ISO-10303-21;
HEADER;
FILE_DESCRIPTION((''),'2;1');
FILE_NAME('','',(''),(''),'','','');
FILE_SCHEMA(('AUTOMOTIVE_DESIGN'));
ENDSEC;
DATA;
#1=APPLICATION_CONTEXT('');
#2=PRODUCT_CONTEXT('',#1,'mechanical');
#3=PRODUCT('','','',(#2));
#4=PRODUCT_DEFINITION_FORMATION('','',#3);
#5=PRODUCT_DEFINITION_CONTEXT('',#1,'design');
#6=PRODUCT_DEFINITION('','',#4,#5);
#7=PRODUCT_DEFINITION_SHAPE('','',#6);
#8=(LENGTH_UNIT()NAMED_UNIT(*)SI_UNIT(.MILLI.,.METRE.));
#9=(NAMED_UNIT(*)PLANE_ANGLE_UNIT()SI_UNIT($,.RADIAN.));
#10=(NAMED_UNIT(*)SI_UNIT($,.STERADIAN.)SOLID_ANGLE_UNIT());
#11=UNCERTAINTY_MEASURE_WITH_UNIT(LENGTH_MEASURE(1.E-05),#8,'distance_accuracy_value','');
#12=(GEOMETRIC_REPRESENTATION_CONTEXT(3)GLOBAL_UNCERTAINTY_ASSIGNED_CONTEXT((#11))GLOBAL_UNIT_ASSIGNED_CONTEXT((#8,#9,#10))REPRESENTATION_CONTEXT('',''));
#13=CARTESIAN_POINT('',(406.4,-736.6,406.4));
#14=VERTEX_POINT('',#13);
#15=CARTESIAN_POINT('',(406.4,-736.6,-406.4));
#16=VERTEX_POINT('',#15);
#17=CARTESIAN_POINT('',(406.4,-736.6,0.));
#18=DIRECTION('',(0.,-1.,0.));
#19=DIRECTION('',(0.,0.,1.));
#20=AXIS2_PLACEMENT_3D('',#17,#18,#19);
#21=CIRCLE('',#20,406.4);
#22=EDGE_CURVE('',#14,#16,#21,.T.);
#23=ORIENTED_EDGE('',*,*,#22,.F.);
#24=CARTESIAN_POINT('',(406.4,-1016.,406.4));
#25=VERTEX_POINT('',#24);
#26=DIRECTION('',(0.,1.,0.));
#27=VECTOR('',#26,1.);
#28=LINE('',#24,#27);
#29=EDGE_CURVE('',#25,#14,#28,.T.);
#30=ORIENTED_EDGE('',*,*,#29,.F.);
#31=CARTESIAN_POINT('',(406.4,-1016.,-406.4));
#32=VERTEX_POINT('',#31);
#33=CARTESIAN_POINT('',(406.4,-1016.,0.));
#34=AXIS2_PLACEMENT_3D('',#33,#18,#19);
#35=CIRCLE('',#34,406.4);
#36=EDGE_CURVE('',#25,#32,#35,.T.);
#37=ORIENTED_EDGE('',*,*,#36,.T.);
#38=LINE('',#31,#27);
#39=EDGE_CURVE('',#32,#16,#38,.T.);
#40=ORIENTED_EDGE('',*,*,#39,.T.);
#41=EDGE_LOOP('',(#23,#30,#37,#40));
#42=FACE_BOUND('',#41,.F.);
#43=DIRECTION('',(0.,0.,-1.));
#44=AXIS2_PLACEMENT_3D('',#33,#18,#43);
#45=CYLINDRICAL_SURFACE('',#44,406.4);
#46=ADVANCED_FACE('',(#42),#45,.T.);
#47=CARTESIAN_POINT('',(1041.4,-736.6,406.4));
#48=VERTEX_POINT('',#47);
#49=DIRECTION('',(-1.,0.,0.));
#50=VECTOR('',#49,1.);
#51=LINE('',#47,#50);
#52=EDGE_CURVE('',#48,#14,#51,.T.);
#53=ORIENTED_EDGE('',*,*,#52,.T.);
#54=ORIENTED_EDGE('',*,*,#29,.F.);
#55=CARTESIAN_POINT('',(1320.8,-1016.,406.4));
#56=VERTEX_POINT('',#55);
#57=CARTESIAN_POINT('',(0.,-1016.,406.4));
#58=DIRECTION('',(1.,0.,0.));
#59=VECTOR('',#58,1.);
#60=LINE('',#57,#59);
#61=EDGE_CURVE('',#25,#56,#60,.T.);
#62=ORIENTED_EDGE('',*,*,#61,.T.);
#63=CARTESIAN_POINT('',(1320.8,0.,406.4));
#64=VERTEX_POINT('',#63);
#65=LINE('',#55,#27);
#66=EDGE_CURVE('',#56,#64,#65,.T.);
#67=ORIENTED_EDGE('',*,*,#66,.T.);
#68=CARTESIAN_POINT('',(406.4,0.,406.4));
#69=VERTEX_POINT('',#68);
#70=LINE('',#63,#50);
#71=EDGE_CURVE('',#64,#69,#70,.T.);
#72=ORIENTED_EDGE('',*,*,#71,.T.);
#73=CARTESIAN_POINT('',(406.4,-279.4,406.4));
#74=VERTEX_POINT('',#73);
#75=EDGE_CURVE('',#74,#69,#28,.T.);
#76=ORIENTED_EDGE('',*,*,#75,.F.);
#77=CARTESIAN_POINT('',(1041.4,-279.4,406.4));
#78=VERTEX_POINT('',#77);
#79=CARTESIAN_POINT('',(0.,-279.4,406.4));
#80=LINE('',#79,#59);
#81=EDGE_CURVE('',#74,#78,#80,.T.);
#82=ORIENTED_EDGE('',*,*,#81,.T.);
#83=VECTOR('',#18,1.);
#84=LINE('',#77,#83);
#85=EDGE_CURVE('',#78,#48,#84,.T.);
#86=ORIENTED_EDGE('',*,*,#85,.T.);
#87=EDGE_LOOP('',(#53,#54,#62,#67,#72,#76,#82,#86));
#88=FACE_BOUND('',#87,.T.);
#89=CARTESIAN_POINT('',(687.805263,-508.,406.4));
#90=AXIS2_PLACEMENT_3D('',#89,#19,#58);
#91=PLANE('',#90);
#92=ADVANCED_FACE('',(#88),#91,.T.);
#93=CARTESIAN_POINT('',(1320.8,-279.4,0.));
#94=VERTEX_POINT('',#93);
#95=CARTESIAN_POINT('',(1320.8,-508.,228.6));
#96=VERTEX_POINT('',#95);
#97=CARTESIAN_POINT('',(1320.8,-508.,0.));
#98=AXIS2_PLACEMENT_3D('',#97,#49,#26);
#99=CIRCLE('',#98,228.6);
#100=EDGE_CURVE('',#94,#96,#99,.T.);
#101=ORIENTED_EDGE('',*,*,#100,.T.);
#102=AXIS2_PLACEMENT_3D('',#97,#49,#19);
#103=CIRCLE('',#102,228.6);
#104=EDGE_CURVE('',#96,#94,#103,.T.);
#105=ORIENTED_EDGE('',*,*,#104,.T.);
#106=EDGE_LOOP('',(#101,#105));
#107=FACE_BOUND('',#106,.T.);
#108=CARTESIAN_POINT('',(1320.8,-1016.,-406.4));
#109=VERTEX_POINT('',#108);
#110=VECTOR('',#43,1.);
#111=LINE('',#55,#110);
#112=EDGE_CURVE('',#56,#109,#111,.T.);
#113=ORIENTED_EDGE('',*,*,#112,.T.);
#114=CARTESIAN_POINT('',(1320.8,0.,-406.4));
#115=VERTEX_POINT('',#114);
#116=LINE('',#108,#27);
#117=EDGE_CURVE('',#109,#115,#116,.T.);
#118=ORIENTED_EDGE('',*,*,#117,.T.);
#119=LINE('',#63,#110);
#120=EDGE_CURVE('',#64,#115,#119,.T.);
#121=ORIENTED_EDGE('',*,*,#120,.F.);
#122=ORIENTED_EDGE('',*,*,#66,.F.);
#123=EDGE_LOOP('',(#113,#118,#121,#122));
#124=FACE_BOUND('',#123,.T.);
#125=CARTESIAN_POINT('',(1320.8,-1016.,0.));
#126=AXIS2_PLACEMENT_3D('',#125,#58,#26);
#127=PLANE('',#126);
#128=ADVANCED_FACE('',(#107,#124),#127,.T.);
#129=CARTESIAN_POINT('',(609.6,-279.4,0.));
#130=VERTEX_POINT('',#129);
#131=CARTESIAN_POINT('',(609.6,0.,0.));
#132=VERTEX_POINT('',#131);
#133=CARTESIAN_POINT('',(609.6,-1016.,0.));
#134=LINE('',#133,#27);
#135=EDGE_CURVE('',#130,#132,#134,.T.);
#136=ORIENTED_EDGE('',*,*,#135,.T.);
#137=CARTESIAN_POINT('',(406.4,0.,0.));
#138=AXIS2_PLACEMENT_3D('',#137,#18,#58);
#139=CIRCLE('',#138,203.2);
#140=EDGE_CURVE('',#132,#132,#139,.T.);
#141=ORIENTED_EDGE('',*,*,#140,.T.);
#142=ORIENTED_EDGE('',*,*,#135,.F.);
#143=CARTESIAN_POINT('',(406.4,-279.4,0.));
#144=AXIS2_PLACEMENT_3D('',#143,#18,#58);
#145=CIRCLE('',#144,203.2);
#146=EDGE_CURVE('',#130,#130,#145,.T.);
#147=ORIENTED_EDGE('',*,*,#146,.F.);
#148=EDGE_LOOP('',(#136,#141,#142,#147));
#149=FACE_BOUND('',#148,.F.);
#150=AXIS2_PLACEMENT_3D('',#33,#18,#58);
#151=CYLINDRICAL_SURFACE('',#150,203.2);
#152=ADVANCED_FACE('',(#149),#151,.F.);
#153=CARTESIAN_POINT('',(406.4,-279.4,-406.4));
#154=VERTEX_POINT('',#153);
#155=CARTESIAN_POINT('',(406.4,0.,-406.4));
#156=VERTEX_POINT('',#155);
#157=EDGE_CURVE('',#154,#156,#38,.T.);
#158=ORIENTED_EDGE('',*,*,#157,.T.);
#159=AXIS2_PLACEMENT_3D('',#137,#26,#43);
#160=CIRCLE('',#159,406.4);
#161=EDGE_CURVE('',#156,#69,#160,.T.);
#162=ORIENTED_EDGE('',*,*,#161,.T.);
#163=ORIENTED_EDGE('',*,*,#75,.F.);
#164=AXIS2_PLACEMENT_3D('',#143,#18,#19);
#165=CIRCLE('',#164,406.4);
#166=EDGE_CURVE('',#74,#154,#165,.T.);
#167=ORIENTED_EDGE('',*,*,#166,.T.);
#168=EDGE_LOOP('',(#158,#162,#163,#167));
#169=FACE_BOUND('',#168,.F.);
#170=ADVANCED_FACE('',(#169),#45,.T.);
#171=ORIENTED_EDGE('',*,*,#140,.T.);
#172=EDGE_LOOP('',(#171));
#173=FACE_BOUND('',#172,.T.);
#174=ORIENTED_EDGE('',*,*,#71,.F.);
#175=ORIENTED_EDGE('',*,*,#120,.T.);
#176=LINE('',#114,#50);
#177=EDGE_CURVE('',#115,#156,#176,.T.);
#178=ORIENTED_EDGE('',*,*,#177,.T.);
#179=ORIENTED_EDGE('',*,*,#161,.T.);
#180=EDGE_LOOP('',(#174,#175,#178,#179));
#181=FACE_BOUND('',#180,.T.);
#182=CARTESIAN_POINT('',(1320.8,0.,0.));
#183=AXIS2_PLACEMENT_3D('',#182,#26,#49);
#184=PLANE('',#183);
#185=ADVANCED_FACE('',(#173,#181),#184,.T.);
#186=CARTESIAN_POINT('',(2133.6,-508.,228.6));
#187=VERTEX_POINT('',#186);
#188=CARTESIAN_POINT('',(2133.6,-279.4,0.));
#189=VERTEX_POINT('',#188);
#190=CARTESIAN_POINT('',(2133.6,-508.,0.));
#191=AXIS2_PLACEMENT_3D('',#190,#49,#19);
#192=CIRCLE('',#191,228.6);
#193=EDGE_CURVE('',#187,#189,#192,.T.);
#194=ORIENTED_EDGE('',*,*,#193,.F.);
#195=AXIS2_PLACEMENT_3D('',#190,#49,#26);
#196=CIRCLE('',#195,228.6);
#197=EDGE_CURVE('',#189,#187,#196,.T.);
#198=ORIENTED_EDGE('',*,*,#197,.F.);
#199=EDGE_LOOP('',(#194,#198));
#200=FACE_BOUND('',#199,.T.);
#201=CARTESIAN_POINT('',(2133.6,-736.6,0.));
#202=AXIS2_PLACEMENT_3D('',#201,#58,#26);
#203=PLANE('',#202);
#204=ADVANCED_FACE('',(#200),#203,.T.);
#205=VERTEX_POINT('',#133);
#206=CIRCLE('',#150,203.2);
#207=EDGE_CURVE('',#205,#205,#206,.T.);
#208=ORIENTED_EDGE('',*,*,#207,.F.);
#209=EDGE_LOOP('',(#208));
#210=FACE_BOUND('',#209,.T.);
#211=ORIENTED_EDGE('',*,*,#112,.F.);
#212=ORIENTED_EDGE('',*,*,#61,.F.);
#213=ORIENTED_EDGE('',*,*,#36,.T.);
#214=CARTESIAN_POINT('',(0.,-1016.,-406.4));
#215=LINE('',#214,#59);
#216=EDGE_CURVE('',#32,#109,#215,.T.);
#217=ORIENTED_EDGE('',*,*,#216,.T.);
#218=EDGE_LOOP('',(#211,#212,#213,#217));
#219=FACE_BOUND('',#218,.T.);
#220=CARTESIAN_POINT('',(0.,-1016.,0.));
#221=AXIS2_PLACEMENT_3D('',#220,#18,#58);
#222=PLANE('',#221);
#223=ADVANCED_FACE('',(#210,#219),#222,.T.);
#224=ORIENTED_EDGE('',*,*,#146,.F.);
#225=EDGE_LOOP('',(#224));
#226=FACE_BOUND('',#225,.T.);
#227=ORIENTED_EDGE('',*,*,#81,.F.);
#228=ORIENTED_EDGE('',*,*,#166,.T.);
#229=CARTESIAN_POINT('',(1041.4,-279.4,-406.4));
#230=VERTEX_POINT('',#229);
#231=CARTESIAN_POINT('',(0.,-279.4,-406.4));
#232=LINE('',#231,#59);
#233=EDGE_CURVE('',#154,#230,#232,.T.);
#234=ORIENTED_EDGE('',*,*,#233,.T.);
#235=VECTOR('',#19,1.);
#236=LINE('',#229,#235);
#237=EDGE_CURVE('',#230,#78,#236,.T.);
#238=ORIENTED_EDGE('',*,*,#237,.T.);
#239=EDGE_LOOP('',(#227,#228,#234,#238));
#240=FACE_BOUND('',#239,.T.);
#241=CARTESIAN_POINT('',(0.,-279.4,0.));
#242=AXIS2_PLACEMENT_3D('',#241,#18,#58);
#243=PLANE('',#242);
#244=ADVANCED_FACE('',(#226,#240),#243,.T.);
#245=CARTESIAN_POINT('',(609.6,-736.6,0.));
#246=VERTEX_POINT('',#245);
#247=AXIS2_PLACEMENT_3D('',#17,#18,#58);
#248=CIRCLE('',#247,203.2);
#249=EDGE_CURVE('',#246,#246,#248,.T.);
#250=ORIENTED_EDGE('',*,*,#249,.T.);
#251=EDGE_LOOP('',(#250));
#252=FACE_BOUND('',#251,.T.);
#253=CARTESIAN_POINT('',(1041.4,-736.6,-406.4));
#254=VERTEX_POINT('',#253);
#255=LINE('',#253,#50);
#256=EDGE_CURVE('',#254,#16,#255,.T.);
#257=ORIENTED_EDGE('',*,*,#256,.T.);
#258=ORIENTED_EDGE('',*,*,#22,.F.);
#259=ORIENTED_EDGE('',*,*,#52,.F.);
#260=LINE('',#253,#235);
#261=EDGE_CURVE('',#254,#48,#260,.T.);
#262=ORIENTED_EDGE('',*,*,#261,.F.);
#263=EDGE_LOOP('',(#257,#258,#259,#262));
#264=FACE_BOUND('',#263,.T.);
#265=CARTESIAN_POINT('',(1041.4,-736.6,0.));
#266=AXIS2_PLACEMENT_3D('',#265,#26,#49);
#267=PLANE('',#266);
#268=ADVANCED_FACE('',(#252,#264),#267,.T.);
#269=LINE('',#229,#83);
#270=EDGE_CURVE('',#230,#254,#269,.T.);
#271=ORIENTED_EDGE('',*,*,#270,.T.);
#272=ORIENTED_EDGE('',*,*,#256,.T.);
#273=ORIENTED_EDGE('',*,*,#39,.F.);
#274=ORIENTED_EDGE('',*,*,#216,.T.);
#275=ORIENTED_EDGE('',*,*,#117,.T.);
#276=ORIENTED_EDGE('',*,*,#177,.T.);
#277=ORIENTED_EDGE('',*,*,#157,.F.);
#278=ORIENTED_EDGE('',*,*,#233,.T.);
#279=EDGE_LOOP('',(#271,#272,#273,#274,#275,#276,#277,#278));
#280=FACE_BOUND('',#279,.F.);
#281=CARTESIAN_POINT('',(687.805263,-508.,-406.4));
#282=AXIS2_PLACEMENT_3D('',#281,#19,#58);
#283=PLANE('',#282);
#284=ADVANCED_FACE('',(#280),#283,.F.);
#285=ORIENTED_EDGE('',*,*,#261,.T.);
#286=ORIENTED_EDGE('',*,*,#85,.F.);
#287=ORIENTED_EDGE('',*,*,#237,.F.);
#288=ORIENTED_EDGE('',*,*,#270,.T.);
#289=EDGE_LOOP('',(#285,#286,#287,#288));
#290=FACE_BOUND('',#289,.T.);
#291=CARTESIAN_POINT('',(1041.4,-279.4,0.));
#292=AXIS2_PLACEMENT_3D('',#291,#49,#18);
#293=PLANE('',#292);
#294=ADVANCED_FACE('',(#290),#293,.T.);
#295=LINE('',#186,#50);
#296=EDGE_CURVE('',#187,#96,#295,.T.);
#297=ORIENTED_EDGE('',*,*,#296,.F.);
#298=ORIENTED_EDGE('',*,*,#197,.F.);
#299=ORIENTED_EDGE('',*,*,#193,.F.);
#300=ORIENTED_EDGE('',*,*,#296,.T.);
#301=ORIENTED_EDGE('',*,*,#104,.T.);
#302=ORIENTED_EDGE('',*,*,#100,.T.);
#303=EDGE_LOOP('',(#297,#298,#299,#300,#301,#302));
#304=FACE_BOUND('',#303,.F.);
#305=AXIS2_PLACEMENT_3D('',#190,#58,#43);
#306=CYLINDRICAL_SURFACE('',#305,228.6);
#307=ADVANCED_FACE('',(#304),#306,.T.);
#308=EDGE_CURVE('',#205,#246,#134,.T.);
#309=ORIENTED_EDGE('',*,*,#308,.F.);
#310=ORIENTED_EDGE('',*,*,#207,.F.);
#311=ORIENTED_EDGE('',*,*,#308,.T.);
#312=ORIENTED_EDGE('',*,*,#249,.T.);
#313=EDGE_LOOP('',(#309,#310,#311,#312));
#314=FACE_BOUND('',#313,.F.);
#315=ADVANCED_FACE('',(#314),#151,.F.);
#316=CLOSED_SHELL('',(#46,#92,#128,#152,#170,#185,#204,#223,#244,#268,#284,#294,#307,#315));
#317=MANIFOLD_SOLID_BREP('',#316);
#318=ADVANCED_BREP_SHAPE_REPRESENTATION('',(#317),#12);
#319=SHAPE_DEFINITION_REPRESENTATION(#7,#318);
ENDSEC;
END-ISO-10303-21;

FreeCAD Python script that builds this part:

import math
import FreeCAD as App
import Part
import Sketcher
Q = App.Units.Quantity


def add_polygon(sketch, points):
    """Adds a closed chain of lines whose ends are joined by coincident constraints."""
    first, n = sketch.GeometryCount, len(points)
    for a, b in zip(points, points[1:] + points[:1]):
        sketch.addGeometry(Part.LineSegment(App.Vector(*a, 0), App.Vector(*b, 0)), False)
    for i in range(n):
        sketch.addConstraint(Sketcher.Constraint("Coincident", first + i, 2, first + (i + 1) % n, 1))

doc = App.newDocument("Part")
params = doc.addObject("Spreadsheet::Sheet", "Params")
for row, (alias, value) in enumerate([
    ("sketch1_width", "52 in"),
    ("sketch1_width2", "41 in"),
    ("sketch1_height", "11 in"),
    ("sketch1_height2", "18 in"),
    ("pad1_length", "16 in"),
    ("sketch2_width", "52 in"),
    ("sketch2_width2", "41 in"),
    ("sketch2_height", "11 in"),
    ("sketch2_height2", "18 in"),
    ("pad2_length", "16 in"),
    ("sketch3_width", "32 in"),
    ("sketch3_height", "18 in"),
    ("pad3_length", "9 in"),
    ("sketch4_width", "32 in"),
    ("sketch4_height", "18 in"),
    ("pad4_length", "9 in"),
    ("sketch5_diameter", "16 in"),
    ("pocket1_length", "50 in"),
    ("sketch6_radius", "16 in"),
    ("pocket2_length", "50 in"),
    ("sketch7_radius", "9 in"),
    ("pocket3_length", "32 in"),
], start=1):
    params.set(f"A{row}", alias)
    params.set(f"B{row}", "=" + value)
    params.setAlias(f"B{row}", alias)

body = doc.addObject("PartDesign::Body", "Body")

sketch1 = doc.addObject("Sketcher::SketchObject", "Sketch")
body.addObject(sketch1)
sketch1.AttachmentSupport = (doc.XY_Plane, [""])
sketch1.MapMode = "FlatFace"
add_polygon(sketch1, [(1321, 0), (0, 0), (0, -279), (1041, -279), (1041, -737), (0, -737), (0, -1016), (1321, -1016)])
sketch1.addConstraint([
    Sketcher.Constraint("Horizontal", 0),
    Sketcher.Constraint("Vertical", 1),
    Sketcher.Constraint("Horizontal", 2),
    Sketcher.Constraint("Vertical", 3),
    Sketcher.Constraint("Horizontal", 4),
    Sketcher.Constraint("Vertical", 5),
    Sketcher.Constraint("Horizontal", 6),
    Sketcher.Constraint("Vertical", 7),
    Sketcher.Constraint("Coincident", 0, 2, -1, 1),
    Sketcher.Constraint("PointOnObject", 4, 2, -2),
    Sketcher.Constraint("Equal", 1, 5),
    Sketcher.Constraint("DistanceX", 0, 2, 0, 1, Q("52 in")),
    Sketcher.Constraint("DistanceX", 2, 1, 2, 2, Q("41 in")),
    Sketcher.Constraint("DistanceY", 1, 2, 1, 1, Q("11 in")),
    Sketcher.Constraint("DistanceY", 3, 2, 3, 1, Q("18 in")),
])
sketch1.setExpression("Constraints[19]", "Params.sketch1_width")
sketch1.setExpression("Constraints[20]", "Params.sketch1_width2")
sketch1.setExpression("Constraints[21]", "Params.sketch1_height")
sketch1.setExpression("Constraints[22]", "Params.sketch1_height2")
pad1 = doc.addObject("PartDesign::Pad", "Pad")
body.addObject(pad1)
pad1.Profile = sketch1
pad1.setExpression("Length", "Params.pad1_length")

sketch2 = doc.addObject("Sketcher::SketchObject", "Sketch001")
body.addObject(sketch2)
sketch2.AttachmentSupport = (doc.XY_Plane, [""])
sketch2.MapMode = "FlatFace"
add_polygon(sketch2, [(1321, 0), (0, 0), (0, -279), (1041, -279), (1041, -737), (0, -737), (0, -1016), (1321, -1016)])
sketch2.addConstraint([
    Sketcher.Constraint("Horizontal", 0),
    Sketcher.Constraint("Vertical", 1),
    Sketcher.Constraint("Horizontal", 2),
    Sketcher.Constraint("Vertical", 3),
    Sketcher.Constraint("Horizontal", 4),
    Sketcher.Constraint("Vertical", 5),
    Sketcher.Constraint("Horizontal", 6),
    Sketcher.Constraint("Vertical", 7),
    Sketcher.Constraint("Coincident", 0, 2, -1, 1),
    Sketcher.Constraint("PointOnObject", 4, 2, -2),
    Sketcher.Constraint("Equal", 1, 5),
    Sketcher.Constraint("DistanceX", 0, 2, 0, 1, Q("52 in")),
    Sketcher.Constraint("DistanceX", 2, 1, 2, 2, Q("41 in")),
    Sketcher.Constraint("DistanceY", 1, 2, 1, 1, Q("11 in")),
    Sketcher.Constraint("DistanceY", 3, 2, 3, 1, Q("18 in")),
])
sketch2.setExpression("Constraints[19]", "Params.sketch2_width")
sketch2.setExpression("Constraints[20]", "Params.sketch2_width2")
sketch2.setExpression("Constraints[21]", "Params.sketch2_height")
sketch2.setExpression("Constraints[22]", "Params.sketch2_height2")
pad2 = doc.addObject("PartDesign::Pad", "Pad001")
body.addObject(pad2)
pad2.Profile = sketch2
pad2.setExpression("Length", "Params.pad2_length")
pad2.Reversed = True

sketch3 = doc.addObject("Sketcher::SketchObject", "Sketch002")
body.addObject(sketch3)
sketch3.AttachmentSupport = (doc.XY_Plane, [""])
sketch3.MapMode = "FlatFace"
add_polygon(sketch3, [(1321, -279), (1321, -737), (2134, -737), (2134, -279)])
sketch3.addConstraint([
    Sketcher.Constraint("Vertical", 0),
    Sketcher.Constraint("Horizontal", 1),
    Sketcher.Constraint("Vertical", 2),
    Sketcher.Constraint("Horizontal", 3),
    Sketcher.Constraint("DistanceX", 1, 1, 1, 2, Q("32 in")),
    Sketcher.Constraint("DistanceY", 0, 2, 0, 1, Q("18 in")),
    Sketcher.Constraint("DistanceX", -1, 1, 0, 2, Q("52 in")),
    Sketcher.Constraint("DistanceY", 0, 2, -1, 1, Q("29 in")),
])
sketch3.setExpression("Constraints[8]", "Params.sketch3_width")
sketch3.setExpression("Constraints[9]", "Params.sketch3_height")
pad3 = doc.addObject("PartDesign::Pad", "Pad002")
body.addObject(pad3)
pad3.Profile = sketch3
pad3.setExpression("Length", "Params.pad3_length")

sketch4 = doc.addObject("Sketcher::SketchObject", "Sketch003")
body.addObject(sketch4)
sketch4.AttachmentSupport = (doc.XY_Plane, [""])
sketch4.MapMode = "FlatFace"
add_polygon(sketch4, [(1321, -279), (1321, -737), (2134, -737), (2134, -279)])
sketch4.addConstraint([
    Sketcher.Constraint("Vertical", 0),
    Sketcher.Constraint("Horizontal", 1),
    Sketcher.Constraint("Vertical", 2),
    Sketcher.Constraint("Horizontal", 3),
    Sketcher.Constraint("DistanceX", 1, 1, 1, 2, Q("32 in")),
    Sketcher.Constraint("DistanceY", 0, 2, 0, 1, Q("18 in")),
    Sketcher.Constraint("DistanceX", -1, 1, 0, 2, Q("52 in")),
    Sketcher.Constraint("DistanceY", 0, 2, -1, 1, Q("29 in")),
])
sketch4.setExpression("Constraints[8]", "Params.sketch4_width")
sketch4.setExpression("Constraints[9]", "Params.sketch4_height")
pad4 = doc.addObject("PartDesign::Pad", "Pad003")
body.addObject(pad4)
pad4.Profile = sketch4
pad4.setExpression("Length", "Params.pad4_length")
pad4.Reversed = True

sketch5 = doc.addObject("Sketcher::SketchObject", "Sketch004")
body.addObject(sketch5)
sketch5.AttachmentSupport = (doc.XZ_Plane, [""])
sketch5.MapMode = "FlatFace"
sketch5.AttachmentOffset = App.Placement(App.Vector(0, 0, 40 * 25.4), App.Rotation())
sketch5.addGeometry(Part.Circle(App.Vector(406, 0, 0), App.Vector(0, 0, 1), 203), False)
sketch5.addConstraint([
    Sketcher.Constraint("PointOnObject", 0, 3, -1),
    Sketcher.Constraint("Diameter", 0, Q("16 in")),
    Sketcher.Constraint("DistanceX", -1, 1, 0, 3, Q("16 in")),
])
sketch5.setExpression("Constraints[1]", "Params.sketch5_diameter")
pocket1 = doc.addObject("PartDesign::Pocket", "Pocket")
body.addObject(pocket1)
pocket1.Profile = sketch5
pocket1.setExpression("Length", "Params.pocket1_length")

sketch6 = doc.addObject("Sketcher::SketchObject", "Sketch005")
body.addObject(sketch6)
sketch6.AttachmentSupport = (doc.XZ_Plane, [""])
sketch6.MapMode = "FlatFace"
sketch6.AttachmentOffset = App.Placement(App.Vector(0, 0, 40 * 25.4), App.Rotation())
sketch6.addGeometry([
    Part.ArcOfCircle(Part.Circle(App.Vector(406, 0, 0), App.Vector(0, 0, 1), 406), math.radians(90), math.radians(180)),
    Part.LineSegment(App.Vector(406, 406, 0), App.Vector(0, 406, 0)),
    Part.LineSegment(App.Vector(0, 406, 0), App.Vector(0, 0, 0)),
    Part.LineSegment(App.Vector(0, -406, 0), App.Vector(406, -406, 0)),
    Part.ArcOfCircle(Part.Circle(App.Vector(406, 0, 0), App.Vector(0, 0, 1), 406), math.radians(-180), math.radians(-90)),
    Part.LineSegment(App.Vector(0, 0, 0), App.Vector(0, -406, 0)),
], False)
sketch6.addConstraint([
    Sketcher.Constraint("Tangent", 0, 1, 1, 1),
    Sketcher.Constraint("Coincident", 1, 2, 2, 1),
    Sketcher.Constraint("Tangent", 2, 2, 0, 2),
    Sketcher.Constraint("Tangent", 3, 2, 4, 2),
    Sketcher.Constraint("Tangent", 4, 1, 5, 1),
    Sketcher.Constraint("Coincident", 5, 2, 3, 1),
    Sketcher.Constraint("Horizontal", 1),
    Sketcher.Constraint("Vertical", 2),
    Sketcher.Constraint("Horizontal", 3),
    Sketcher.Constraint("Vertical", 5),
    Sketcher.Constraint("Coincident", 2, 2, -1, 1),
    Sketcher.Constraint("Coincident", 4, 3, 0, 3),
    Sketcher.Constraint("Equal", 0, 4),
    Sketcher.Constraint("Radius", 0, Q("16 in")),
])
sketch6.setExpression("Constraints[13]", "Params.sketch6_radius")
pocket2 = doc.addObject("PartDesign::Pocket", "Pocket001")
body.addObject(pocket2)
pocket2.Profile = sketch6
pocket2.setExpression("Length", "Params.pocket2_length")

sketch7 = doc.addObject("Sketcher::SketchObject", "Sketch006")
body.addObject(sketch7)
sketch7.AttachmentSupport = (doc.YZ_Plane, [""])
sketch7.MapMode = "FlatFace"
sketch7.AttachmentOffset = App.Placement(App.Vector(0, 0, 84 * 25.4), App.Rotation())
sketch7.addGeometry([
    Part.ArcOfCircle(Part.Circle(App.Vector(-508, 0, 0), App.Vector(0, 0, 1), 229), math.radians(90), math.radians(180)),
    Part.LineSegment(App.Vector(-508, 229, 0), App.Vector(-737, 229, 0)),
    Part.LineSegment(App.Vector(-737, 229, 0), App.Vector(-737, 0, 0)),
    Part.ArcOfCircle(Part.Circle(App.Vector(-508, 0, 0), App.Vector(0, 0, 1), 229), math.radians(0), math.radians(90)),
    Part.LineSegment(App.Vector(-279, 0, 0), App.Vector(-279, 229, 0)),
    Part.LineSegment(App.Vector(-279, 229, 0), App.Vector(-508, 229, 0)),
    Part.LineSegment(App.Vector(-279, -229, 0), App.Vector(-279, 0, 0)),
    Part.ArcOfCircle(Part.Circle(App.Vector(-508, 0, 0), App.Vector(0, 0, 1), 229), math.radians(-90), math.radians(0)),
    Part.LineSegment(App.Vector(-508, -229, 0), App.Vector(-279, -229, 0)),
    Part.LineSegment(App.Vector(-737, -229, 0), App.Vector(-508, -229, 0)),
    Part.ArcOfCircle(Part.Circle(App.Vector(-508, 0, 0), App.Vector(0, 0, 1), 229), math.radians(-180), math.radians(-90)),
    Part.LineSegment(App.Vector(-737, 0, 0), App.Vector(-737, -229, 0)),
], False)
sketch7.addConstraint([
    Sketcher.Constraint("Tangent", 0, 1, 1, 1),
    Sketcher.Constraint("Coincident", 1, 2, 2, 1),
    Sketcher.Constraint("Tangent", 2, 2, 0, 2),
    Sketcher.Constraint("Tangent", 3, 1, 4, 1),
    Sketcher.Constraint("Coincident", 4, 2, 5, 1),
    Sketcher.Constraint("Tangent", 5, 2, 3, 2),
    Sketcher.Constraint("Tangent", 6, 2, 7, 2),
    Sketcher.Constraint("Tangent", 7, 1, 8, 1),
    Sketcher.Constraint("Coincident", 8, 2, 6, 1),
    Sketcher.Constraint("Tangent", 9, 2, 10, 2),
    Sketcher.Constraint("Tangent", 10, 1, 11, 1),
    Sketcher.Constraint("Coincident", 11, 2, 9, 1),
    Sketcher.Constraint("Horizontal", 1),
    Sketcher.Constraint("Vertical", 2),
    Sketcher.Constraint("Vertical", 4),
    Sketcher.Constraint("Horizontal", 5),
    Sketcher.Constraint("Vertical", 6),
    Sketcher.Constraint("Horizontal", 8),
    Sketcher.Constraint("Horizontal", 9),
    Sketcher.Constraint("Vertical", 11),
    Sketcher.Constraint("Coincident", 3, 3, 0, 3),
    Sketcher.Constraint("Coincident", 7, 3, 0, 3),
    Sketcher.Constraint("Coincident", 10, 3, 0, 3),
    Sketcher.Constraint("Equal", 0, 3),
    Sketcher.Constraint("Equal", 3, 7),
    Sketcher.Constraint("Equal", 7, 10),
    Sketcher.Constraint("PointOnObject", 0, 3, -1),
    Sketcher.Constraint("Radius", 0, Q("9 in")),
    Sketcher.Constraint("DistanceX", 0, 3, -1, 1, Q("20 in")),
])
sketch7.setExpression("Constraints[27]", "Params.sketch7_radius")
pocket3 = doc.addObject("PartDesign::Pocket", "Pocket002")
body.addObject(pocket3)
pocket3.Profile = sketch7
pocket3.setExpression("Length", "Params.pocket3_length")

doc.recompute()
